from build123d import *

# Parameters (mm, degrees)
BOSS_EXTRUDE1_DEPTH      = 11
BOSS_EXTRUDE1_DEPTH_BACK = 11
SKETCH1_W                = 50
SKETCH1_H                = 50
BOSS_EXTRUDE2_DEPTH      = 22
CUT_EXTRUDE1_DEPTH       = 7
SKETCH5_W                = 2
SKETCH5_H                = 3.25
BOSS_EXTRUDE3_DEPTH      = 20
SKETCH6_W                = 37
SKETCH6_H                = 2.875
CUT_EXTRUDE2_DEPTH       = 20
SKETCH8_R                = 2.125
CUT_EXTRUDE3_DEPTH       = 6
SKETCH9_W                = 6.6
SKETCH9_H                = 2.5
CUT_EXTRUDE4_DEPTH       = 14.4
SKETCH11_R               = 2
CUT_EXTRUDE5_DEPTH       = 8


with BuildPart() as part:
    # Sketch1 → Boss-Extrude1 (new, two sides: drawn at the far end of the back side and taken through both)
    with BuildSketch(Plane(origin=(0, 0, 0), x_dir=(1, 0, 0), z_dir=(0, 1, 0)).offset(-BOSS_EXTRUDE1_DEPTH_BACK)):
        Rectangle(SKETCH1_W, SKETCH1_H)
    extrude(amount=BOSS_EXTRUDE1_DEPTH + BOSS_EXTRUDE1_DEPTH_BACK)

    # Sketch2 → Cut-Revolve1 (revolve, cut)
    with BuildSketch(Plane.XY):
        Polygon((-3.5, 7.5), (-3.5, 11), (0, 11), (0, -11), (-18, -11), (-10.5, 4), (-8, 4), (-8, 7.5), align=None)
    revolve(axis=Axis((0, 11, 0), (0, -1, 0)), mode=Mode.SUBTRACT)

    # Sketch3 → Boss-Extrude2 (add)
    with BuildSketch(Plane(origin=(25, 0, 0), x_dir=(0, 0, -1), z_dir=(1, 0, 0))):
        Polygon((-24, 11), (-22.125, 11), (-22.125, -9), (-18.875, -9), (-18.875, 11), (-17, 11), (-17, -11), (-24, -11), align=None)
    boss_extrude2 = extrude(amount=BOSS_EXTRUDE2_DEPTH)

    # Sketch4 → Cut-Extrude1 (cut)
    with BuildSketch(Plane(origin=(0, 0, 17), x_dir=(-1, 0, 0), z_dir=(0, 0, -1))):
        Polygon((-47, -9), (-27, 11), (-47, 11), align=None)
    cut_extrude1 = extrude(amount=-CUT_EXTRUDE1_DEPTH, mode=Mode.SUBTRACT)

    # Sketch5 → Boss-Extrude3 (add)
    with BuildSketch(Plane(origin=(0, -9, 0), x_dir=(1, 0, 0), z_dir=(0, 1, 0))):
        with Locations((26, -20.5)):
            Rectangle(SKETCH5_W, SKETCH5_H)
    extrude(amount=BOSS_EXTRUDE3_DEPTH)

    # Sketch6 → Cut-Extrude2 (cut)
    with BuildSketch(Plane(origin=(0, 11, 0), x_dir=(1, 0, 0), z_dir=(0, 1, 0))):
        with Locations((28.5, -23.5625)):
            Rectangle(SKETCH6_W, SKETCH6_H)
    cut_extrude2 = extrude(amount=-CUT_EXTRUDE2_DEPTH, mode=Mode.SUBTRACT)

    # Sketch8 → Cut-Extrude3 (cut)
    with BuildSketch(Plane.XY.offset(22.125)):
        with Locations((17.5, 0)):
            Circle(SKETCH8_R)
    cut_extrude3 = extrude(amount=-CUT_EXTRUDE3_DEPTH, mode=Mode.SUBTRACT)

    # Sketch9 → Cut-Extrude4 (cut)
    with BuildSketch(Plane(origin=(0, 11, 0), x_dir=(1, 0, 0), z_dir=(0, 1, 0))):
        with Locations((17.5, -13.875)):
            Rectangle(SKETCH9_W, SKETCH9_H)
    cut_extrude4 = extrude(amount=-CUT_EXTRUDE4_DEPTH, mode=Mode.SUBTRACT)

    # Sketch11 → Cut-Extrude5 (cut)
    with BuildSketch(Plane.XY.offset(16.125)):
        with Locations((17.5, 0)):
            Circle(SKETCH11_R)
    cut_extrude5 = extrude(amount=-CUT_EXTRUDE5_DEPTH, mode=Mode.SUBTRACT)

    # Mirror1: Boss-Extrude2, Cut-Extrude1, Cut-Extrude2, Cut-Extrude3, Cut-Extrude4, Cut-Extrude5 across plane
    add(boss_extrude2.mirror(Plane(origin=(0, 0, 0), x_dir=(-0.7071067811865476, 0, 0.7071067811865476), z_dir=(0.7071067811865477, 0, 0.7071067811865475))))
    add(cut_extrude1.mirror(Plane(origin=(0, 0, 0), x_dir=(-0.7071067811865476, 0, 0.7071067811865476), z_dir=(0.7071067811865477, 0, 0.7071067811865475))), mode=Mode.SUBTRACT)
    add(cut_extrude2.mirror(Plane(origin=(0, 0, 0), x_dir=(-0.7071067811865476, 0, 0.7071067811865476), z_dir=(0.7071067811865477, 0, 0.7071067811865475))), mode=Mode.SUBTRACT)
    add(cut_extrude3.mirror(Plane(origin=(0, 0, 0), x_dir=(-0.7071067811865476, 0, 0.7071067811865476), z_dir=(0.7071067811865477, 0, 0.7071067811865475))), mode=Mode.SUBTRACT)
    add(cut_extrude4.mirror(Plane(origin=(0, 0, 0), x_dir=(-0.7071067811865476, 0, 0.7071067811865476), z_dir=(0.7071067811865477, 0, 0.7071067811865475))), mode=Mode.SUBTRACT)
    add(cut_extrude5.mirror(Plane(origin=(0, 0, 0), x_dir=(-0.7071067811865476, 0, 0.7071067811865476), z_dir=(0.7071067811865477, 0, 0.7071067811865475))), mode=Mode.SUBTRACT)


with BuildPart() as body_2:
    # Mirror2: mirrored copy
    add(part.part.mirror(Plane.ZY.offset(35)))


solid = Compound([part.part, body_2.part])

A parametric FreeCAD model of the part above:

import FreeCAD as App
import Part
import Sketcher

V = App.Vector

doc = App.newDocument("Part")
body = doc.addObject("PartDesign::Body", "Body")

sketch1 = body.newObject("Sketcher::SketchObject", "Sketch")
sketch1.AttachmentSupport = (doc.getObject("XZ_Plane"), [""])
sketch1.MapMode = "FlatFace"
sketch1.addGeometry([
    Part.LineSegment(V(-25, -25, 0), V(-25, 25, 0)),
    Part.LineSegment(V(-25, 25, 0), V(25, 25, 0)),
    Part.LineSegment(V(25, 25, 0), V(25, -25, 0)),
    Part.LineSegment(V(25, -25, 0), V(-25, -25, 0)),
], False)
sketch1.addConstraint([
    Sketcher.Constraint("Coincident", 0, 2, 1, 1),
    Sketcher.Constraint("Coincident", 1, 2, 2, 1),
    Sketcher.Constraint("Coincident", 2, 2, 3, 1),
    Sketcher.Constraint("Coincident", 3, 2, 0, 1),
    Sketcher.Constraint("Vertical", 0),
    Sketcher.Constraint("Horizontal", 1),
    Sketcher.Constraint("Vertical", 2),
    Sketcher.Constraint("Horizontal", 3),
    Sketcher.Constraint("Symmetric", 0, 2, 2, 2, -1, 1),
    Sketcher.Constraint("Equal", 3, 0),
    Sketcher.Constraint("DistanceX", 1, 1, 1, 2, 50.0),
])
pad1 = body.newObject("PartDesign::Pad", "Pad")
pad1.Profile = sketch1
pad1.Type = "TwoLengths"
pad1.Length = 11
pad1.Length2 = 11
pad1.Reversed = True

sketch2 = body.newObject("Sketcher::SketchObject", "Sketch001")
sketch2.AttachmentSupport = (doc.getObject("XY_Plane"), [""])
sketch2.MapMode = "FlatFace"
sketch2.addGeometry([
    Part.LineSegment(V(-3.5, 11, 0), V(-3.5, 7.5, 0)),
    Part.LineSegment(V(-3.5, 7.5, 0), V(-8, 7.5, 0)),
    Part.LineSegment(V(-8, 7.5, 0), V(-8, 4, 0)),
    Part.LineSegment(V(-8, 4, 0), V(-10.5, 4, 0)),
    Part.LineSegment(V(-10.5, 4, 0), V(-18, -11, 0)),
    Part.LineSegment(V(-18, -11, 0), V(0, -11, 0)),
    Part.LineSegment(V(0, -11, 0), V(0, 11, 0)),
    Part.LineSegment(V(0, 11, 0), V(-3.5, 11, 0)),
], False)
sketch2.addConstraint([
    Sketcher.Constraint("Coincident", 0, 2, 1, 1),
    Sketcher.Constraint("Coincident", 1, 2, 2, 1),
    Sketcher.Constraint("Coincident", 2, 2, 3, 1),
    Sketcher.Constraint("Coincident", 3, 2, 4, 1),
    Sketcher.Constraint("Coincident", 4, 2, 5, 1),
    Sketcher.Constraint("Coincident", 5, 2, 6, 1),
    Sketcher.Constraint("Coincident", 6, 2, 7, 1),
    Sketcher.Constraint("Coincident", 7, 2, 0, 1),
    Sketcher.Constraint("Vertical", 0),
    Sketcher.Constraint("Horizontal", 1),
    Sketcher.Constraint("Vertical", 2),
    Sketcher.Constraint("Horizontal", 3),
    Sketcher.Constraint("Horizontal", 5),
    Sketcher.Constraint("Vertical", 6),
    Sketcher.Constraint("Horizontal", 7),
    Sketcher.Constraint("Symmetric", 5, 2, 6, 2, -1, 1),
    Sketcher.Constraint("Equal", 7, 0),
    Sketcher.Constraint("Equal", 0, 2),
    Sketcher.Constraint("DistanceX", 5, 1, 5, 2, 18.0),
    Sketcher.Constraint("DistanceY", 6, 1, 6, 2, 22.0),
    Sketcher.Constraint("DistanceX", 1, 2, 1, 1, 4.5),
    Sketcher.Constraint("DistanceX", 3, 2, 3, 1, 2.5),
    Sketcher.Constraint("DistanceX", 7, 2, 7, 1, 3.5),
])
groove = body.newObject("PartDesign::Groove", "Groove")
groove.Profile = sketch2
groove.ReferenceAxis = (sketch2, ["V_Axis"])
groove.Angle = 360

sketch3 = body.newObject("Sketcher::SketchObject", "Sketch002")
sketch3.AttachmentSupport = (doc.getObject("YZ_Plane"), [""])
sketch3.MapMode = "FlatFace"
sketch3.AttachmentOffset = App.Placement(V(0, 0, 25), App.Rotation())
sketch3.addGeometry([
    Part.LineSegment(V(11, 22.1, 0), V(11, 24, 0)),
    Part.LineSegment(V(11, 24, 0), V(-11, 24, 0)),
    Part.LineSegment(V(-11, 24, 0), V(-11, 17, 0)),
    Part.LineSegment(V(-11, 17, 0), V(11, 17, 0)),
    Part.LineSegment(V(11, 17, 0), V(11, 18.9, 0)),
    Part.LineSegment(V(11, 18.9, 0), V(-9, 18.9, 0)),
    Part.LineSegment(V(-9, 18.9, 0), V(-9, 22.1, 0)),
    Part.LineSegment(V(-9, 22.1, 0), V(11, 22.1, 0)),
], False)
sketch3.addConstraint([
    Sketcher.Constraint("Coincident", 0, 2, 1, 1),
    Sketcher.Constraint("Coincident", 1, 2, 2, 1),
    Sketcher.Constraint("Coincident", 2, 2, 3, 1),
    Sketcher.Constraint("Coincident", 3, 2, 4, 1),
    Sketcher.Constraint("Coincident", 4, 2, 5, 1),
    Sketcher.Constraint("Coincident", 5, 2, 6, 1),
    Sketcher.Constraint("Coincident", 6, 2, 7, 1),
    Sketcher.Constraint("Coincident", 7, 2, 0, 1),
    Sketcher.Constraint("Vertical", 0),
    Sketcher.Constraint("Horizontal", 1),
    Sketcher.Constraint("Vertical", 2),
    Sketcher.Constraint("Horizontal", 3),
    Sketcher.Constraint("Vertical", 4),
    Sketcher.Constraint("Horizontal", 5),
    Sketcher.Constraint("Vertical", 6),
    Sketcher.Constraint("Horizontal", 7),
    Sketcher.Constraint("Vertical", 0, 2, 3, 2),
    Sketcher.Constraint("Equal", 0, 4),
    Sketcher.Constraint("DistanceX", 1, 2, 1, 1, 22.0),
    Sketcher.Constraint("DistanceX", 5, 2, 5, 1, 20.0),
    Sketcher.Constraint("DistanceY", 2, 2, 2, 1, 7.0),
    Sketcher.Constraint("DistanceX", -1, 1, 0, 2, 11.0),
    Sketcher.Constraint("DistanceY", -1, 1, 0, 2, 24.0),
    Sketcher.Constraint("DistanceY", 6, 1, 6, 2, 3.25),
])
pad2 = body.newObject("PartDesign::Pad", "Pad001")
pad2.Profile = sketch3
pad2.Length = 22

sketch4 = body.newObject("Sketcher::SketchObject", "Sketch003")
sketch4.AttachmentSupport = (doc.getObject("XY_Plane"), [""])
sketch4.MapMode = "FlatFace"
sketch4.AttachmentOffset = App.Placement(V(0, 0, 17), App.Rotation())
sketch4.addGeometry([
    Part.LineSegment(V(47, -9, 0), V(27, 11, 0)),
    Part.LineSegment(V(27, 11, 0), V(47, 11, 0)),
    Part.LineSegment(V(47, 11, 0), V(47, -9, 0)),
], False)
sketch4.addConstraint([
    Sketcher.Constraint("Coincident", 0, 2, 1, 1),
    Sketcher.Constraint("Coincident", 1, 2, 2, 1),
    Sketcher.Constraint("Coincident", 2, 2, 0, 1),
    Sketcher.Constraint("Horizontal", 1),
    Sketcher.Constraint("Vertical", 2),
    Sketcher.Constraint("Equal", 1, 2),
    Sketcher.Constraint("DistanceX", 1, 1, 1, 2, 20.0),
    Sketcher.Constraint("DistanceX", -1, 1, 0, 2, 27.0),
    Sketcher.Constraint("DistanceY", -1, 1, 0, 2, 11.0),
])
pocket1 = body.newObject("PartDesign::Pocket", "Pocket")
pocket1.Profile = sketch4
pocket1.Length = 7
pocket1.Reversed = True

sketch5 = body.newObject("Sketcher::SketchObject", "Sketch004")
sketch5.AttachmentSupport = (doc.getObject("XZ_Plane"), [""])
sketch5.MapMode = "FlatFace"
sketch5.AttachmentOffset = App.Placement(V(0, 0, 9), App.Rotation())
sketch5.addGeometry([
    Part.LineSegment(V(25, 18.9, 0), V(25, 22.1, 0)),
    Part.LineSegment(V(25, 22.1, 0), V(27, 22.1, 0)),
    Part.LineSegment(V(27, 22.1, 0), V(27, 18.9, 0)),
    Part.LineSegment(V(27, 18.9, 0), V(25, 18.9, 0)),
], False)
sketch5.addConstraint([
    Sketcher.Constraint("Coincident", 0, 2, 1, 1),
    Sketcher.Constraint("Coincident", 1, 2, 2, 1),
    Sketcher.Constraint("Coincident", 2, 2, 3, 1),
    Sketcher.Constraint("Coincident", 3, 2, 0, 1),
    Sketcher.Constraint("Vertical", 0),
    Sketcher.Constraint("Horizontal", 1),
    Sketcher.Constraint("Vertical", 2),
    Sketcher.Constraint("Horizontal", 3),
    Sketcher.Constraint("DistanceX", 1, 1, 1, 2, 2.0),
    Sketcher.Constraint("DistanceX", -1, 1, 0, 2, 25.0),
    Sketcher.Constraint("DistanceY", 0, 1, 0, 2, 3.25),
    Sketcher.Constraint("DistanceY", -1, 1, 0, 2, 22.125),
])
pad3 = body.newObject("PartDesign::Pad", "Pad002")
pad3.Profile = sketch5
pad3.Length = 20
pad3.Reversed = True

sketch6 = body.newObject("Sketcher::SketchObject", "Sketch005")
sketch6.AttachmentSupport = (doc.getObject("XZ_Plane"), [""])
sketch6.MapMode = "FlatFace"
sketch6.AttachmentOffset = App.Placement(V(0, 0, -11), App.Rotation())
sketch6.addGeometry([
    Part.LineSegment(V(10, 22.1, 0), V(10, 25, 0)),
    Part.LineSegment(V(10, 25, 0), V(47, 25, 0)),
    Part.LineSegment(V(47, 25, 0), V(47, 22.1, 0)),
    Part.LineSegment(V(47, 22.1, 0), V(10, 22.1, 0)),
], False)
sketch6.addConstraint([
    Sketcher.Constraint("Coincident", 0, 2, 1, 1),
    Sketcher.Constraint("Coincident", 1, 2, 2, 1),
    Sketcher.Constraint("Coincident", 2, 2, 3, 1),
    Sketcher.Constraint("Coincident", 3, 2, 0, 1),
    Sketcher.Constraint("Vertical", 0),
    Sketcher.Constraint("Horizontal", 1),
    Sketcher.Constraint("Vertical", 2),
    Sketcher.Constraint("Horizontal", 3),
    Sketcher.Constraint("DistanceX", 1, 1, 1, 2, 37.0),
    Sketcher.Constraint("DistanceX", -1, 1, 0, 2, 10.0),
    Sketcher.Constraint("DistanceY", -1, 1, 0, 2, 25.0),
    Sketcher.Constraint("DistanceY", 0, 1, 0, 2, 2.875),
])
pocket2 = body.newObject("PartDesign::Pocket", "Pocket001")
pocket2.Profile = sketch6
pocket2.Length = 20
pocket2.Reversed = True

sketch7 = body.newObject("Sketcher::SketchObject", "Sketch006")
sketch7.AttachmentSupport = (doc.getObject("XY_Plane"), [""])
sketch7.MapMode = "FlatFace"
sketch7.AttachmentOffset = App.Placement(V(0, 0, 22.125), App.Rotation())
sketch7.addGeometry(Part.Circle(V(17.5, 0, 0), V(0, 0, 1), 2.1), False)
sketch7.addConstraint([
    Sketcher.Constraint("PointOnObject", 0, 3, -1),
    Sketcher.Constraint("Diameter", 0, 4.25),
    Sketcher.Constraint("DistanceX", -1, 1, 0, 3, 17.5),
])
pocket3 = body.newObject("PartDesign::Pocket", "Pocket002")
pocket3.Profile = sketch7
pocket3.Length = 6

sketch8 = body.newObject("Sketcher::SketchObject", "Sketch007")
sketch8.AttachmentSupport = (doc.getObject("XZ_Plane"), [""])
sketch8.MapMode = "FlatFace"
sketch8.AttachmentOffset = App.Placement(V(0, 0, -11), App.Rotation())
sketch8.addGeometry([
    Part.LineSegment(V(14.2, 12.6, 0), V(14.2, 15.1, 0)),
    Part.LineSegment(V(14.2, 15.1, 0), V(20.8, 15.1, 0)),
    Part.LineSegment(V(20.8, 15.1, 0), V(20.8, 12.6, 0)),
    Part.LineSegment(V(20.8, 12.6, 0), V(14.2, 12.6, 0)),
], False)
sketch8.addConstraint([
    Sketcher.Constraint("Coincident", 0, 2, 1, 1),
    Sketcher.Constraint("Coincident", 1, 2, 2, 1),
    Sketcher.Constraint("Coincident", 2, 2, 3, 1),
    Sketcher.Constraint("Coincident", 3, 2, 0, 1),
    Sketcher.Constraint("Vertical", 0),
    Sketcher.Constraint("Horizontal", 1),
    Sketcher.Constraint("Vertical", 2),
    Sketcher.Constraint("Horizontal", 3),
    Sketcher.Constraint("DistanceX", 1, 1, 1, 2, 6.6),
    Sketcher.Constraint("DistanceY", 0, 1, 0, 2, 2.5),
    Sketcher.Constraint("DistanceX", -1, 1, 0, 2, 14.2),
    Sketcher.Constraint("DistanceY", -1, 1, 0, 2, 15.125),
])
pocket4 = body.newObject("PartDesign::Pocket", "Pocket003")
pocket4.Profile = sketch8
pocket4.Length = 14.4
pocket4.Reversed = True

sketch9 = body.newObject("Sketcher::SketchObject", "Sketch008")
sketch9.AttachmentSupport = (doc.getObject("XY_Plane"), [""])
sketch9.MapMode = "FlatFace"
sketch9.AttachmentOffset = App.Placement(V(0, 0, 16.125), App.Rotation())
sketch9.addGeometry(Part.Circle(V(17.5, 0, 0), V(0, 0, 1), 2), False)
sketch9.addConstraint([
    Sketcher.Constraint("PointOnObject", 0, 3, -1),
    Sketcher.Constraint("Diameter", 0, 4.0),
    Sketcher.Constraint("DistanceX", -1, 1, 0, 3, 17.5),
])
pocket5 = body.newObject("PartDesign::Pocket", "Pocket004")
pocket5.Profile = sketch9
pocket5.Length = 8
doc.recompute()

datumplane = body.newObject("PartDesign::Plane", "DatumPlane")
datumplane.Placement = App.Placement(V(0, 0, 0), App.Rotation(V(-0.707106781, 0, 0.707106781), V(0, -1, 0), V(0.707106781, 0, 0.707106781), "ZXY"))
mirrored = body.newObject("PartDesign::Mirrored", "Mirrored")
mirrored.Originals = [pad2, pocket1, pocket2, pocket3, pocket4, pocket5]
mirrored.MirrorPlane = (datumplane, [""])
body.Tip = mirrored
body2 = doc.addObject("PartDesign::Body", "Body001")
doc.recompute()

mirroring = doc.addObject("Part::Mirroring", "Mirroring")
mirroring.Source = body
mirroring.Base = V(-35, 0, 0)
mirroring.Normal = V(-1, 0, 0)
body2.BaseFeature = mirroring
doc.recompute()
mirroring.Visibility = False

doc.recompute()
